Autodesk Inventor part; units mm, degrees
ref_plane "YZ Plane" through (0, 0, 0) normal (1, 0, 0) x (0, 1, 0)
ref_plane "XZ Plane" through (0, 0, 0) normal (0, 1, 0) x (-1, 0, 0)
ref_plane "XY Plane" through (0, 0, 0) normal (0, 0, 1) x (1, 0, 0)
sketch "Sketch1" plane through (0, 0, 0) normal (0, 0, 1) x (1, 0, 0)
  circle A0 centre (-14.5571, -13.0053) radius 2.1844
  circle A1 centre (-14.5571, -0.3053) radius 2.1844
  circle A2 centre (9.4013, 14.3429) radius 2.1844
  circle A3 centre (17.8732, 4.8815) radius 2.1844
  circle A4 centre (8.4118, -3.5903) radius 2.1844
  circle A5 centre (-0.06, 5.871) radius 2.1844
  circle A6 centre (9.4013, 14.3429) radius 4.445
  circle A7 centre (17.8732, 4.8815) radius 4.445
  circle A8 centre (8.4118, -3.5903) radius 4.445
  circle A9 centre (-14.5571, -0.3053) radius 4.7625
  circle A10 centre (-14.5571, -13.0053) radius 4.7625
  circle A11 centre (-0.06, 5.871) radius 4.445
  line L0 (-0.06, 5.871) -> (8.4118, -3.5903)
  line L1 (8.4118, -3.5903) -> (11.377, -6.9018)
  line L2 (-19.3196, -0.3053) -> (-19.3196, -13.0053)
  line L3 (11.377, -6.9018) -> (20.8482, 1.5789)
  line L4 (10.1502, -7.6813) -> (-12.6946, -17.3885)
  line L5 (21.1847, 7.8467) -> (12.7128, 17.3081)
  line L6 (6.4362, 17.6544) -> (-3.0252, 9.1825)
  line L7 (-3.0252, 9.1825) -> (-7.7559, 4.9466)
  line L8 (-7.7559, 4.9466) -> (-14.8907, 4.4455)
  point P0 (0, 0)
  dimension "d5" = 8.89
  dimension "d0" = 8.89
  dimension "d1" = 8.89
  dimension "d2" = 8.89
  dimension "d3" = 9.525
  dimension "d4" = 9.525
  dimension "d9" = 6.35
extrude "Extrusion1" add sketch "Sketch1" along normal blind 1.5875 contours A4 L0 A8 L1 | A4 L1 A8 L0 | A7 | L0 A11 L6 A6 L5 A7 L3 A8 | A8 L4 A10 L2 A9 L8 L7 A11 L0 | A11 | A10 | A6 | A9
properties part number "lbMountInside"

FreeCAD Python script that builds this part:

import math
import FreeCAD as App
import Part
import Sketcher
from FreeCAD import Vector
Q = App.Units.Quantity

doc = App.newDocument("Part")
params = doc.addObject("Spreadsheet::Sheet", "Params")
for row, (alias, value) in enumerate([
    ("sketch1_radius", "0.175 in"),
    ("sketch1_radius2", "0.1875 in"),
    ("sketch1_length", "0.25 in"),
    ("sketch1_diameter", "0.172 in"),
    ("sketch1_height", "0.5 in"),
    ("pad1_length", "0.0625 in"),
], start=1):
    params.set(f"A{row}", alias)
    params.set(f"B{row}", "=" + value)
    params.setAlias(f"B{row}", alias)

body = doc.addObject("PartDesign::Body", "Body")

sketch1 = doc.addObject("Sketcher::SketchObject", "Sketch")
body.addObject(sketch1)
sketch1.AttachmentSupport = (doc.XY_Plane, [""])
sketch1.MapMode = "FlatFace"
sketch1.addGeometry(Part.ArcOfCircle(Part.Circle(Vector(8.4, -3.6, 0), Vector(0, 0, 1), 4.4), math.radians(-66.98), math.radians(-48.16)), False)
sketch1.addGeometry(Part.LineSegment(Vector(11.4, -6.9, 0), Vector(20.8, 1.6, 0)), False)
sketch1.addGeometry(Part.ArcOfCircle(Part.Circle(Vector(17.9, 4.9, 0), Vector(0, 0, 1), 4.4), math.radians(-48), math.radians(42)), False)
sketch1.addGeometry(Part.LineSegment(Vector(21.2, 7.8, 0), Vector(12.7, 17.3, 0)), False)
sketch1.addGeometry(Part.ArcOfCircle(Part.Circle(Vector(9.4, 14.3, 0), Vector(0, 0, 1), 4.4), math.radians(42), math.radians(132)), False)
sketch1.addGeometry(Part.LineSegment(Vector(6.4, 17.7, 0), Vector(-3, 9.2, 0)), False)
sketch1.addGeometry(Part.LineSegment(Vector(-3, 9.2, 0), Vector(-7.8, 4.9, 0)), False)
sketch1.addGeometry(Part.LineSegment(Vector(-7.8, 4.9, 0), Vector(-14.9, 4.4, 0)), False)
sketch1.addGeometry(Part.ArcOfCircle(Part.Circle(Vector(-14.6, -0.3, 0), Vector(0, 0, 1), 4.8), math.radians(94), math.radians(180)), False)
sketch1.addGeometry(Part.LineSegment(Vector(-19.3, -0.3, 0), Vector(-19.3, -13, 0)), False)
sketch1.addGeometry(Part.ArcOfCircle(Part.Circle(Vector(-14.6, -13, 0), Vector(0, 0, 1), 4.8), math.radians(180), math.radians(293)), False)
sketch1.addGeometry(Part.LineSegment(Vector(-12.7, -17.4, 0), Vector(10.2, -7.7, 0)), False)
sketch1.addGeometry(Part.Circle(Vector(8.4, -3.6, 0), Vector(0, 0, 1), 2.2), False)
sketch1.addGeometry(Part.Circle(Vector(-0.1, 5.9, 0), Vector(0, 0, 1), 2.2), False)
sketch1.addGeometry(Part.Circle(Vector(9.4, 14.3, 0), Vector(0, 0, 1), 2.2), False)
sketch1.addGeometry(Part.Circle(Vector(17.9, 4.9, 0), Vector(0, 0, 1), 2.2), False)
sketch1.addGeometry(Part.Circle(Vector(-14.6, -13, 0), Vector(0, 0, 1), 2.2), False)
sketch1.addGeometry(Part.Circle(Vector(-14.6, -0.3, 0), Vector(0, 0, 1), 2.2), False)
sketch1.addConstraint(Sketcher.Constraint("Tangent", 0, 2, 1, 1))
sketch1.addConstraint(Sketcher.Constraint("Coincident", 1, 2, 2, 1))
sketch1.addConstraint(Sketcher.Constraint("Tangent", 2, 2, 3, 1))
sketch1.addConstraint(Sketcher.Constraint("Tangent", 3, 2, 4, 1))
sketch1.addConstraint(Sketcher.Constraint("Tangent", 4, 2, 5, 1))
sketch1.addConstraint(Sketcher.Constraint("Coincident", 5, 2, 6, 1))
sketch1.addConstraint(Sketcher.Constraint("Coincident", 6, 2, 7, 1))
sketch1.addConstraint(Sketcher.Constraint("Tangent", 7, 2, 8, 1))
sketch1.addConstraint(Sketcher.Constraint("Tangent", 8, 2, 9, 1))
sketch1.addConstraint(Sketcher.Constraint("Tangent", 9, 2, 10, 1))
sketch1.addConstraint(Sketcher.Constraint("Tangent", 10, 2, 11, 1))
sketch1.addConstraint(Sketcher.Constraint("Tangent", 11, 2, 0, 1))
sketch1.addConstraint(Sketcher.Constraint("Vertical", 9))
sketch1.addConstraint(Sketcher.Constraint("Coincident", 12, 3, 0, 3))
sketch1.addConstraint(Sketcher.Constraint("Coincident", 14, 3, 4, 3))
sketch1.addConstraint(Sketcher.Constraint("Coincident", 15, 3, 2, 3))
sketch1.addConstraint(Sketcher.Constraint("Coincident", 16, 3, 10, 3))
sketch1.addConstraint(Sketcher.Constraint("Coincident", 17, 3, 8, 3))
sketch1.addConstraint(Sketcher.Constraint("Equal", 0, 2))
sketch1.addConstraint(Sketcher.Constraint("Equal", 2, 4))
sketch1.addConstraint(Sketcher.Constraint("Equal", 8, 10))
sketch1.addConstraint(Sketcher.Constraint("Equal", 12, 13))
sketch1.addConstraint(Sketcher.Constraint("Equal", 13, 14))
sketch1.addConstraint(Sketcher.Constraint("Equal", 14, 15))
sketch1.addConstraint(Sketcher.Constraint("Equal", 15, 16))
sketch1.addConstraint(Sketcher.Constraint("Equal", 16, 17))
sketch1.addConstraint(Sketcher.Constraint("Perpendicular", 1, 3))
sketch1.addConstraint(Sketcher.Constraint("Perpendicular", 3, 5))
sketch1.addConstraint(Sketcher.Constraint("Parallel", 5, 6))
sketch1.addConstraint(Sketcher.Constraint("Equal", 3, 5))
sketch1.addConstraint(Sketcher.Constraint("Radius", 0, Q("0.175 in")))
sketch1.addConstraint(Sketcher.Constraint("Radius", 8, Q("0.1875 in")))
sketch1.addConstraint(Sketcher.Constraint("Distance", 6, Q("0.25 in")))
sketch1.addConstraint(Sketcher.Constraint("Diameter", 12, Q("0.172 in")))
sketch1.addConstraint(Sketcher.Constraint("DistanceY", 9, 2, 9, 1, Q("0.5 in")))
sketch1.addConstraint(Sketcher.Constraint("Distance", 3, Q("0.5 in")))
sketch1.addConstraint(Sketcher.Constraint("DistanceX", 8, 3, 5, 2, Q("0.454 in")))
sketch1.addConstraint(Sketcher.Constraint("DistanceX", 6, 2, 13, 3, Q("0.303 in")))
sketch1.addConstraint(Sketcher.Constraint("Distance", 7, Q("0.2816 in")))
sketch1.addConstraint(Sketcher.Constraint("DistanceX", -1, 1, 1, 2, Q("0.8208 in")))
sketch1.addConstraint(Sketcher.Constraint("DistanceX", -1, 1, 3, 2, Q("0.5005 in")))
sketch1.addConstraint(Sketcher.Constraint("DistanceX", 5, 2, -1, 1, Q("0.1191 in")))
sketch1.addConstraint(Sketcher.Constraint("DistanceX", 0, 3, 2, 3, Q("0.3725 in")))
sketch1.addConstraint(Sketcher.Constraint("DistanceY", 0, 3, 13, 3, Q("0.3725 in")))
sketch1.addConstraint(Sketcher.Constraint("DistanceY", 0, 3, -1, 1, Q("3.5903 mm")))
sketch1.setExpression("Constraints[30]", "Params.sketch1_radius")
sketch1.setExpression("Constraints[31]", "Params.sketch1_radius2")
sketch1.setExpression("Constraints[32]", "Params.sketch1_length")
sketch1.setExpression("Constraints[33]", "Params.sketch1_diameter")
sketch1.setExpression("Constraints[34]", "Params.sketch1_height")
pad1 = doc.addObject("PartDesign::Pad", "Pad")
body.addObject(pad1)
pad1.Profile = sketch1
pad1.setExpression("Length", "Params.pad1_length")

doc.recompute()
